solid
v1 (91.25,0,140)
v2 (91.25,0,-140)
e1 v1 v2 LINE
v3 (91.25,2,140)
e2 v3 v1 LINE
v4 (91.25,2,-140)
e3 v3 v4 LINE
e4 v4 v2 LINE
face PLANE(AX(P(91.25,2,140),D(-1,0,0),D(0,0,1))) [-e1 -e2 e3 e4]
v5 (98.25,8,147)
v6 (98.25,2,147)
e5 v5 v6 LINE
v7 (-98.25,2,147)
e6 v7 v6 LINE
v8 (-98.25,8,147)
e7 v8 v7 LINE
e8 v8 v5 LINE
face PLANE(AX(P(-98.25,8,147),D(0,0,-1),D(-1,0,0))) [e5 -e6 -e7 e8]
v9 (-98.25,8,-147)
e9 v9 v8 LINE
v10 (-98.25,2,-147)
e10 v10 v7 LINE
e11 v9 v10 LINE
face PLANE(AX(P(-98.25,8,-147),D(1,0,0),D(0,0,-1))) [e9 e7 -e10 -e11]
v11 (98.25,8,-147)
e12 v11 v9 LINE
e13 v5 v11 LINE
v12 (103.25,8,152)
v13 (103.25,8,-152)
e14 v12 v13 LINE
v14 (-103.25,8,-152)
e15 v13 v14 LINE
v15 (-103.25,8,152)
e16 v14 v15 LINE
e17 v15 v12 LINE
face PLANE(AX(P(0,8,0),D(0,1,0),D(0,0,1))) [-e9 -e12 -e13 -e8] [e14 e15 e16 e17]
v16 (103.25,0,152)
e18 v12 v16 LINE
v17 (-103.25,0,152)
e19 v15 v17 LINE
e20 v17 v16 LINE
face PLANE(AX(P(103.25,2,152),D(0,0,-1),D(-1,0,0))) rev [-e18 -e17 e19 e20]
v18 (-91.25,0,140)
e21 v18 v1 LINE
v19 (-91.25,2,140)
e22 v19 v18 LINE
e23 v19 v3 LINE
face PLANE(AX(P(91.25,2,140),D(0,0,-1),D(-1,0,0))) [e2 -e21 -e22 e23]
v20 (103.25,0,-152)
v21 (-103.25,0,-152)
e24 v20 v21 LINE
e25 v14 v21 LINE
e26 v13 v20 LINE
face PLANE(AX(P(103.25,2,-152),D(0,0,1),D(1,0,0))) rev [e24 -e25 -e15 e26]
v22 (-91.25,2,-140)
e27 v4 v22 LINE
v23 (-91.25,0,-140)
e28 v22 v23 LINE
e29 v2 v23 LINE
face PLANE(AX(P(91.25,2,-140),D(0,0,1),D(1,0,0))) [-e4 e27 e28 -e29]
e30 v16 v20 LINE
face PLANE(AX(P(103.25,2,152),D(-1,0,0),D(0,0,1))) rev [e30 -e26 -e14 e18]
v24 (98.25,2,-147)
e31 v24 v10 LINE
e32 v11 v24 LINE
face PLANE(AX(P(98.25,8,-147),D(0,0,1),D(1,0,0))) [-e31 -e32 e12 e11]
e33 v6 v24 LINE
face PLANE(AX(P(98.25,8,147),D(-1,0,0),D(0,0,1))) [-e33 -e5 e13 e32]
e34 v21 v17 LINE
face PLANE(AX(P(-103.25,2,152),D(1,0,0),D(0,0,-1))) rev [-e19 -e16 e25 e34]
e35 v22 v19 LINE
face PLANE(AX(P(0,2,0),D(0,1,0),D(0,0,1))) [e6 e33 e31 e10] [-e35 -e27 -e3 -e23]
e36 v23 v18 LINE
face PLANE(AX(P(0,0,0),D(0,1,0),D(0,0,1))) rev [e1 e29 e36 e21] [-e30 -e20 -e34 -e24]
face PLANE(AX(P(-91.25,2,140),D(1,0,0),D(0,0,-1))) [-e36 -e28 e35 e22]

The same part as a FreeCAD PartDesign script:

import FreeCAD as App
import Part
import Sketcher
from FreeCAD import Vector

doc = App.newDocument("Part")
body = doc.addObject("PartDesign::Body", "Body")

# Sketch on XZ plane
sketch1 = doc.addObject("Sketcher::SketchObject", "Sketch")
body.addObject(sketch1)
sketch1.AttachmentSupport = (doc.XZ_Plane, [""])
sketch1.MapMode = "FlatFace"
sketch1.addGeometry(Part.LineSegment(Vector(-103, -152, 0), Vector(-103, 152, 0)), False)
sketch1.addGeometry(Part.LineSegment(Vector(-103, 152, 0), Vector(103, 152, 0)), False)
sketch1.addGeometry(Part.LineSegment(Vector(103, 152, 0), Vector(103, -152, 0)), False)
sketch1.addGeometry(Part.LineSegment(Vector(103, -152, 0), Vector(-103, -152, 0)), False)
sketch1.addGeometry(Part.LineSegment(Vector(91, 140, 0), Vector(-91, 140, 0)), False)
sketch1.addGeometry(Part.LineSegment(Vector(-91, 140, 0), Vector(-91, -140, 0)), False)
sketch1.addGeometry(Part.LineSegment(Vector(-91, -140, 0), Vector(91, -140, 0)), False)
sketch1.addGeometry(Part.LineSegment(Vector(91, -140, 0), Vector(91, 140, 0)), False)
sketch1.addConstraint(Sketcher.Constraint("Coincident", 0, 2, 1, 1))
sketch1.addConstraint(Sketcher.Constraint("Coincident", 1, 2, 2, 1))
sketch1.addConstraint(Sketcher.Constraint("Coincident", 2, 2, 3, 1))
sketch1.addConstraint(Sketcher.Constraint("Coincident", 3, 2, 0, 1))
sketch1.addConstraint(Sketcher.Constraint("Coincident", 4, 2, 5, 1))
sketch1.addConstraint(Sketcher.Constraint("Coincident", 5, 2, 6, 1))
sketch1.addConstraint(Sketcher.Constraint("Coincident", 6, 2, 7, 1))
sketch1.addConstraint(Sketcher.Constraint("Coincident", 7, 2, 4, 1))
sketch1.addConstraint(Sketcher.Constraint("Vertical", 0))
sketch1.addConstraint(Sketcher.Constraint("Horizontal", 1))
sketch1.addConstraint(Sketcher.Constraint("Vertical", 2))
sketch1.addConstraint(Sketcher.Constraint("Horizontal", 3))
sketch1.addConstraint(Sketcher.Constraint("Horizontal", 4))
sketch1.addConstraint(Sketcher.Constraint("Vertical", 5))
sketch1.addConstraint(Sketcher.Constraint("Horizontal", 6))
sketch1.addConstraint(Sketcher.Constraint("Vertical", 7))
sketch1.addConstraint(Sketcher.Constraint("Symmetric", 0, 2, 2, 2, -1, 1))
sketch1.addConstraint(Sketcher.Constraint("Symmetric", 4, 2, 6, 2, -1, 1))
sketch1.addConstraint(Sketcher.Constraint("DistanceY", 0, 1, 0, 2, 304.0))
sketch1.addConstraint(Sketcher.Constraint("DistanceY", 5, 2, 5, 1, 280.0))
sketch1.addConstraint(Sketcher.Constraint("DistanceX", 1, 1, 1, 2, 206.5))
sketch1.addConstraint(Sketcher.Constraint("DistanceX", 4, 2, 4, 1, 182.5))
pad1 = doc.addObject("PartDesign::Pad", "Pad")
body.addObject(pad1)
pad1.Profile = sketch1
pad1.Length = 2
pad1.Reversed = True

# Sketch on XZ plane
sketch2 = doc.addObject("Sketcher::SketchObject", "Sketch001")
body.addObject(sketch2)
sketch2.AttachmentSupport = (doc.XZ_Plane, [""])
sketch2.MapMode = "FlatFace"
sketch2.AttachmentOffset = App.Placement(Vector(0, 0, -2), App.Rotation())
sketch2.addGeometry(Part.LineSegment(Vector(-103, -152, 0), Vector(-103, 152, 0)), False)
sketch2.addGeometry(Part.LineSegment(Vector(-103, 152, 0), Vector(103, 152, 0)), False)
sketch2.addGeometry(Part.LineSegment(Vector(103, 152, 0), Vector(103, -152, 0)), False)
sketch2.addGeometry(Part.LineSegment(Vector(103, -152, 0), Vector(-103, -152, 0)), False)
sketch2.addGeometry(Part.LineSegment(Vector(98, 147, 0), Vector(-98, 147, 0)), False)
sketch2.addGeometry(Part.LineSegment(Vector(-98, 147, 0), Vector(-98, -147, 0)), False)
sketch2.addGeometry(Part.LineSegment(Vector(-98, -147, 0), Vector(98, -147, 0)), False)
sketch2.addGeometry(Part.LineSegment(Vector(98, -147, 0), Vector(98, 147, 0)), False)
sketch2.addConstraint(Sketcher.Constraint("Coincident", 0, 2, 1, 1))
sketch2.addConstraint(Sketcher.Constraint("Coincident", 1, 2, 2, 1))
sketch2.addConstraint(Sketcher.Constraint("Coincident", 2, 2, 3, 1))
sketch2.addConstraint(Sketcher.Constraint("Coincident", 3, 2, 0, 1))
sketch2.addConstraint(Sketcher.Constraint("Coincident", 4, 2, 5, 1))
sketch2.addConstraint(Sketcher.Constraint("Coincident", 5, 2, 6, 1))
sketch2.addConstraint(Sketcher.Constraint("Coincident", 6, 2, 7, 1))
sketch2.addConstraint(Sketcher.Constraint("Coincident", 7, 2, 4, 1))
sketch2.addConstraint(Sketcher.Constraint("Vertical", 0))
sketch2.addConstraint(Sketcher.Constraint("Horizontal", 1))
sketch2.addConstraint(Sketcher.Constraint("Vertical", 2))
sketch2.addConstraint(Sketcher.Constraint("Horizontal", 3))
sketch2.addConstraint(Sketcher.Constraint("Horizontal", 4))
sketch2.addConstraint(Sketcher.Constraint("Vertical", 5))
sketch2.addConstraint(Sketcher.Constraint("Horizontal", 6))
sketch2.addConstraint(Sketcher.Constraint("Vertical", 7))
sketch2.addConstraint(Sketcher.Constraint("Symmetric", 0, 2, 2, 2, -1, 1))
sketch2.addConstraint(Sketcher.Constraint("Symmetric", 4, 2, 6, 2, -1, 1))
sketch2.addConstraint(Sketcher.Constraint("DistanceY", 0, 1, 0, 2, 304.0))
sketch2.addConstraint(Sketcher.Constraint("DistanceY", 5, 2, 5, 1, 294.0))
sketch2.addConstraint(Sketcher.Constraint("DistanceX", 1, 1, 1, 2, 206.5))
sketch2.addConstraint(Sketcher.Constraint("DistanceX", 4, 2, 4, 1, 196.5))
pad2 = doc.addObject("PartDesign::Pad", "Pad001")
body.addObject(pad2)
pad2.Profile = sketch2
pad2.Length = 6
pad2.Reversed = True

doc.recompute()
